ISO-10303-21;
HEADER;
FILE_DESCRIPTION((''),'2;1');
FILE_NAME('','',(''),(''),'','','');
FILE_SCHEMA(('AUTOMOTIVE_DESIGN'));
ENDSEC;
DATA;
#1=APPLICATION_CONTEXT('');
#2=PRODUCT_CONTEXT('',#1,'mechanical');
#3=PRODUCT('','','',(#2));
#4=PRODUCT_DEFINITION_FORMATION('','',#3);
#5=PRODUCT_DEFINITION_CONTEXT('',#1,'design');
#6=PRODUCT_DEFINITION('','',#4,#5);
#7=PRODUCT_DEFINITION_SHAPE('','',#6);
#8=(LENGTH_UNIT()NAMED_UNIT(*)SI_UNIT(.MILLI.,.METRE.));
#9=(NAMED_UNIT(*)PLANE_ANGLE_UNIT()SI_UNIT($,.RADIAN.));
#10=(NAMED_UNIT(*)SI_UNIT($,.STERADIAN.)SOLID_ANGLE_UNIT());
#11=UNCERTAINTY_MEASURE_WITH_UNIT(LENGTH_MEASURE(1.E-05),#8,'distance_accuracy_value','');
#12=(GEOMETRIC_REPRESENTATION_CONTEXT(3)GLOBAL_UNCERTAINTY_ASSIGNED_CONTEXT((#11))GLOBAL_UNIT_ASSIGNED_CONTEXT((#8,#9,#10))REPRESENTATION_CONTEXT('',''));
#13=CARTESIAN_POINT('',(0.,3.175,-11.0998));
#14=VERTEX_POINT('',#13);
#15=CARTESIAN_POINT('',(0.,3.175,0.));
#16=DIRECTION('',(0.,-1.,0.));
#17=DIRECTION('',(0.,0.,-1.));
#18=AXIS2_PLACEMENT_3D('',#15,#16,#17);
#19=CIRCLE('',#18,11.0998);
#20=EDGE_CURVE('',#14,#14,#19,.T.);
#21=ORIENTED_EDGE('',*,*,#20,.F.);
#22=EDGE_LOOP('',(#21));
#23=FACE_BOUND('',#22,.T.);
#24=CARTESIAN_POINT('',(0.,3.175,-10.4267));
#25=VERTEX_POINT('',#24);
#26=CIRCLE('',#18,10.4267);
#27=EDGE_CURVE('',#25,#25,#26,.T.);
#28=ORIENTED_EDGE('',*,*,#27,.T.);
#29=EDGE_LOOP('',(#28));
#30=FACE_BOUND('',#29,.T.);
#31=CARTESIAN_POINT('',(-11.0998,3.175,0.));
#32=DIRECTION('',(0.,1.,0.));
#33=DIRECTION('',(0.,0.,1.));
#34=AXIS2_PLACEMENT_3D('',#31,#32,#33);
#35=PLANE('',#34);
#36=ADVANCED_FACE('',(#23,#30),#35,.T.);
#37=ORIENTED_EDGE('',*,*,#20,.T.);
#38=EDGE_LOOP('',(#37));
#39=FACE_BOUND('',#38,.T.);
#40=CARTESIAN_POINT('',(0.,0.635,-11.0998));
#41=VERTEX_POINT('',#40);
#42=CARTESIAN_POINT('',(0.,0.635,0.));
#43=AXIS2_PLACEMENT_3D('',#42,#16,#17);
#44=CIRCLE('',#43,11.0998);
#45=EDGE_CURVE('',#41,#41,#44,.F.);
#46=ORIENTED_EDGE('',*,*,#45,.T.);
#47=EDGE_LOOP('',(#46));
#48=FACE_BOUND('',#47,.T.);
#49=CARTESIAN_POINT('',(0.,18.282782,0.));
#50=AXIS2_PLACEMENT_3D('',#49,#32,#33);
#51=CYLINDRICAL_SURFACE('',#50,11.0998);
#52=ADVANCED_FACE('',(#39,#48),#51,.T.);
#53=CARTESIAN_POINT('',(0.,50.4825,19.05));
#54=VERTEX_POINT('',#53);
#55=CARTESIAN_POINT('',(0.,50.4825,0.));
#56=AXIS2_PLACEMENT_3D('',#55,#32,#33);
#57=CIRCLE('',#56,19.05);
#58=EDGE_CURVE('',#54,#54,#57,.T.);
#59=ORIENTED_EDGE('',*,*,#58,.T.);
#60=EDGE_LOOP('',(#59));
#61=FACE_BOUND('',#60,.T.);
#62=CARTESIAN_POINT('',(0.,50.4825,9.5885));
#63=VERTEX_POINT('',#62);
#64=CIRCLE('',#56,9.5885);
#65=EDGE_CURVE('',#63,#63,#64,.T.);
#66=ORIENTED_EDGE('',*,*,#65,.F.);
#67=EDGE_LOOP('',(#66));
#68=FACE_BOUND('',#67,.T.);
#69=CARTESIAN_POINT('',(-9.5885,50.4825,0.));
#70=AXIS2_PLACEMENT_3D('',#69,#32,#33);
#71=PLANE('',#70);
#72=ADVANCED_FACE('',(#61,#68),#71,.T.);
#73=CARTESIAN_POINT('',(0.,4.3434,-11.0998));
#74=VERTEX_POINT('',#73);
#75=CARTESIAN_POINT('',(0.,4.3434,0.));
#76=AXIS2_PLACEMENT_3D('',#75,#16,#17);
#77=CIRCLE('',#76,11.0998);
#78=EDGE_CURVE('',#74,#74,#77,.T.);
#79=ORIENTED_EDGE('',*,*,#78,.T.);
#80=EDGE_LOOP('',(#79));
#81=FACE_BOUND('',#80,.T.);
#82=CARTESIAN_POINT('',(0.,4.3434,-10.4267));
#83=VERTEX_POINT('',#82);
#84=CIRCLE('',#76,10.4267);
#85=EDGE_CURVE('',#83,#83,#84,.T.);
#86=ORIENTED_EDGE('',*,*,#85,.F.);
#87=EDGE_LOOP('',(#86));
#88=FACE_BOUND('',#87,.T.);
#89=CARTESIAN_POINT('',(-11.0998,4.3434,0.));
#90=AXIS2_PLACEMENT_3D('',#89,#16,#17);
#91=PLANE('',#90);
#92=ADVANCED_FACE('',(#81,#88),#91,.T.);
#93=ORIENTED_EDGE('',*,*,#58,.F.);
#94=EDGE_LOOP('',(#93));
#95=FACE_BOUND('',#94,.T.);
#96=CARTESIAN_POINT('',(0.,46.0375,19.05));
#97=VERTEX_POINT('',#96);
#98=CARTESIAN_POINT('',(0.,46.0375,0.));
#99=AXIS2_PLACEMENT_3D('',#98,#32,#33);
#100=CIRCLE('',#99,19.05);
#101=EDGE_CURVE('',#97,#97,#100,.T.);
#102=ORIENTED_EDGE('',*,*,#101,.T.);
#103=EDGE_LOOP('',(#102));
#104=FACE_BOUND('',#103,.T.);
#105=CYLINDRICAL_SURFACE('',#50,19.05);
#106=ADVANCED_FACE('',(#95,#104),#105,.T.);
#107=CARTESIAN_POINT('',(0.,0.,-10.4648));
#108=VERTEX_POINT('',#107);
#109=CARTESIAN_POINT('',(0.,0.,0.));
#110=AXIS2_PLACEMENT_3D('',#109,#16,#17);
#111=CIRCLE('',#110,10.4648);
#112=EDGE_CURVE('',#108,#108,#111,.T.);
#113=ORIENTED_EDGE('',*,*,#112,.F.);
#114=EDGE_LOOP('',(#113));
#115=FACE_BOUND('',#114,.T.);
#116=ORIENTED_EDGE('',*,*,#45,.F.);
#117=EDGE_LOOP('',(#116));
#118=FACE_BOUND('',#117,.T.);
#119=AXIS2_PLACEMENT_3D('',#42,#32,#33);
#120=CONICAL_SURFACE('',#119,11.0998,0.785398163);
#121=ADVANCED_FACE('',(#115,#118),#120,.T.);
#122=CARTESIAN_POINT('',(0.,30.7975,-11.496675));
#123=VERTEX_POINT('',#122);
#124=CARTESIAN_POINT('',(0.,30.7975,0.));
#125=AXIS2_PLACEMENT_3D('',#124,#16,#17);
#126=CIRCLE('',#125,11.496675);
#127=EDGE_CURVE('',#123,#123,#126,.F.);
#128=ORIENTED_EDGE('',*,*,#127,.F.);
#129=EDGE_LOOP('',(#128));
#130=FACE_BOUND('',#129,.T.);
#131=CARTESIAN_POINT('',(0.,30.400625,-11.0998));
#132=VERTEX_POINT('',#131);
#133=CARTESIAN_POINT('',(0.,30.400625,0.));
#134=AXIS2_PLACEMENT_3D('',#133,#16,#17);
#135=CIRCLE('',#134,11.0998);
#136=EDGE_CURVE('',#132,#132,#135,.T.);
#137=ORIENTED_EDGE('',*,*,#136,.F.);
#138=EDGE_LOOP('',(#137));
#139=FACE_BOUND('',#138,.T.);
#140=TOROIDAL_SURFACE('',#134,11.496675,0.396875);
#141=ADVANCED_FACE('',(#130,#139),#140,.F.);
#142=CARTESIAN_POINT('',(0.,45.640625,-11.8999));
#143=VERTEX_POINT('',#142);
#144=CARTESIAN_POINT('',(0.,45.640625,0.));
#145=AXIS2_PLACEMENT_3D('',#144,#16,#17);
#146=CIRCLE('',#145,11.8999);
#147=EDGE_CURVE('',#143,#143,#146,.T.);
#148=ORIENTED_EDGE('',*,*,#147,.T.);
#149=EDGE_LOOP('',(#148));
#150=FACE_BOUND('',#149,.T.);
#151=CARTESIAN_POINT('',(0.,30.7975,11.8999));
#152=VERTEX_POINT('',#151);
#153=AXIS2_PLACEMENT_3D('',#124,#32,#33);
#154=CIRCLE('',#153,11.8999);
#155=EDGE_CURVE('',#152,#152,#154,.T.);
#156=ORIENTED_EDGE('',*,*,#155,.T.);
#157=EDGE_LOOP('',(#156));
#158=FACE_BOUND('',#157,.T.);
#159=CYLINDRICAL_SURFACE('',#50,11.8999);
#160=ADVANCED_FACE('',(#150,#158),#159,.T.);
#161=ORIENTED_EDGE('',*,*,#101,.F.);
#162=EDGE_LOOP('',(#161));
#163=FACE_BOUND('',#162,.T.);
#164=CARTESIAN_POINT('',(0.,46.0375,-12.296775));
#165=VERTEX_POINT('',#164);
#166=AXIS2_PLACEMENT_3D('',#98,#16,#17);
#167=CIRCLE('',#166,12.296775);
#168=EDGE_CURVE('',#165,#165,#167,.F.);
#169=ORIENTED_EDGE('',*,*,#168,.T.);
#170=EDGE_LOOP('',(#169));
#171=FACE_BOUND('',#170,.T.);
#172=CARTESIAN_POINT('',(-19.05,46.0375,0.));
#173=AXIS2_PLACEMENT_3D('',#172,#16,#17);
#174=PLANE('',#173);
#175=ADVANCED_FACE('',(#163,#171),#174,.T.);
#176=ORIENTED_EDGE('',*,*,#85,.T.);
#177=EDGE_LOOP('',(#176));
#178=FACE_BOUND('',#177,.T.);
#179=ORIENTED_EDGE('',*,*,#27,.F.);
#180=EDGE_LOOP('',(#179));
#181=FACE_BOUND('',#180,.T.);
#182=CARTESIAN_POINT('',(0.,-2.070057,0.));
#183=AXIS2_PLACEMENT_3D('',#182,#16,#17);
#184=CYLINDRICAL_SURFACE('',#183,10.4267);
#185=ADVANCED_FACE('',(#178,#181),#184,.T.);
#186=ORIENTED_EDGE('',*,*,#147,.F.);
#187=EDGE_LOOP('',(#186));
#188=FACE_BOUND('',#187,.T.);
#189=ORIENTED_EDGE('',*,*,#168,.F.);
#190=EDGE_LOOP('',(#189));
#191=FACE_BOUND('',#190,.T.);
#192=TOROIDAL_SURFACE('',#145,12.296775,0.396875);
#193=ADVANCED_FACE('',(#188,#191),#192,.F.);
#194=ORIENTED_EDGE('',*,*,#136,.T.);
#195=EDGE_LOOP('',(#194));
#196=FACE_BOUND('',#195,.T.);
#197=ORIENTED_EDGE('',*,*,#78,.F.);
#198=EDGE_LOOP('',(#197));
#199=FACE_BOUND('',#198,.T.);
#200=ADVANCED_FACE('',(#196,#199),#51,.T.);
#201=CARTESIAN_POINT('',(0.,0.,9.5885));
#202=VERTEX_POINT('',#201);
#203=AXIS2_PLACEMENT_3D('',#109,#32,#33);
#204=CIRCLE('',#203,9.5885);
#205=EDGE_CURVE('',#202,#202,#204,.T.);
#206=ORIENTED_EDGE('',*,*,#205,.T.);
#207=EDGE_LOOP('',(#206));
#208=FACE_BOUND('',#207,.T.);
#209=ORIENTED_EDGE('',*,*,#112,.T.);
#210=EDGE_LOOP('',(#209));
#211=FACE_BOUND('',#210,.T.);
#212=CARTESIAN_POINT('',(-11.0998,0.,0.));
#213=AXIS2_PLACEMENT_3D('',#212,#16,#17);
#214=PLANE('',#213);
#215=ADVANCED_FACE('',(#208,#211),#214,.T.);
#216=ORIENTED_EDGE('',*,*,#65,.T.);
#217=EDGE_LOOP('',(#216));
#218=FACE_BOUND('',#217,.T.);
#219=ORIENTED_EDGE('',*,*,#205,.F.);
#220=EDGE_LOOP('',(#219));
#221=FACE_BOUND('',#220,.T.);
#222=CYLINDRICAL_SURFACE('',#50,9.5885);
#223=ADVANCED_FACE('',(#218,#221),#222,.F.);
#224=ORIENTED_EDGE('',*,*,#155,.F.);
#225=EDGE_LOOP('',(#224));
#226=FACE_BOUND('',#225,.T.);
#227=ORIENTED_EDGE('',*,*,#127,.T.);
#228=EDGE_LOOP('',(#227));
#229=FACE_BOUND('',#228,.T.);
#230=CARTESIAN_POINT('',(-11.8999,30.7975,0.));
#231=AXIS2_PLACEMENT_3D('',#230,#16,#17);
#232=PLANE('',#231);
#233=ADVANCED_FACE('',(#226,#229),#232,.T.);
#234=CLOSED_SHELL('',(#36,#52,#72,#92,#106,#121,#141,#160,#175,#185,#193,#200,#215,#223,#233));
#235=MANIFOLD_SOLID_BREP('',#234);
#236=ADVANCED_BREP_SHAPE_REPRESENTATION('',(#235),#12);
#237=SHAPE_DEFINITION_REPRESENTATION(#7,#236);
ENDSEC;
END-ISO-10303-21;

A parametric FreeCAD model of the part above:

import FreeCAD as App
import Part
import Sketcher
from FreeCAD import Vector
Q = App.Units.Quantity


def edges_at(feature, points):
    """Names of the edges that pass closest to the given points."""
    edges = feature.Shape.Edges
    near = lambda p: min(range(len(edges)), key=lambda i: edges[i].distToShape(Part.Vertex(*p))[0])
    return sorted({f"Edge{near(p) + 1}" for p in points})

doc = App.newDocument("Part")
params = doc.addObject("Spreadsheet::Sheet", "Params")
for row, (alias, value) in enumerate([
    ("sketch1_height", "0.6 in"),
    ("sketch1_height2", "0.175 in"),
    ("revolution_angle", "360 deg"),
    ("chamfer_size", "0.025 in"),
    ("sketch2_height", "0.046 in"),
    ("groove_angle", "360 deg"),
    ("fillet_radius", "0.015625 in"),
], start=1):
    params.set(f"A{row}", alias)
    params.set(f"B{row}", "=" + value)
    params.setAlias(f"B{row}", alias)

body = doc.addObject("PartDesign::Body", "Body")

sketch1 = body.newObject("Sketcher::SketchObject", "Sketch")
sketch1.AttachmentSupport = (doc.getObject("XY_Plane"), [""])
sketch1.MapMode = "FlatFace"
sketch1.addGeometry([
    Part.LineSegment(Vector(-19.1, 50.5, 0), Vector(-19.1, 46, 0)),
    Part.LineSegment(Vector(-19.1, 46, 0), Vector(-11.9, 46, 0)),
    Part.LineSegment(Vector(-11.9, 46, 0), Vector(-11.9, 30.8, 0)),
    Part.LineSegment(Vector(-11.9, 30.8, 0), Vector(-11.1, 30.8, 0)),
    Part.LineSegment(Vector(-11.1, 30.8, 0), Vector(-11.1, 0, 0)),
    Part.LineSegment(Vector(-11.1, 0, 0), Vector(-9.6, 0, 0)),
    Part.LineSegment(Vector(-9.6, 0, 0), Vector(-9.6, 50.5, 0)),
    Part.LineSegment(Vector(-9.6, 50.5, 0), Vector(-19.1, 50.5, 0)),
], False)
sketch1.addConstraint([
    Sketcher.Constraint("Coincident", 0, 2, 1, 1),
    Sketcher.Constraint("Coincident", 1, 2, 2, 1),
    Sketcher.Constraint("Coincident", 2, 2, 3, 1),
    Sketcher.Constraint("Coincident", 3, 2, 4, 1),
    Sketcher.Constraint("Coincident", 4, 2, 5, 1),
    Sketcher.Constraint("Coincident", 5, 2, 6, 1),
    Sketcher.Constraint("Coincident", 6, 2, 7, 1),
    Sketcher.Constraint("Coincident", 7, 2, 0, 1),
    Sketcher.Constraint("Vertical", 0),
    Sketcher.Constraint("Horizontal", 1),
    Sketcher.Constraint("Vertical", 2),
    Sketcher.Constraint("Horizontal", 3),
    Sketcher.Constraint("Vertical", 4),
    Sketcher.Constraint("Horizontal", 5),
    Sketcher.Constraint("Vertical", 6),
    Sketcher.Constraint("Horizontal", 7),
    Sketcher.Constraint("PointOnObject", 4, 2, -1),
    Sketcher.Constraint("DistanceY", 2, 2, 2, 1, Q("0.6 in")),
    Sketcher.Constraint("DistanceY", 0, 2, 0, 1, Q("0.175 in")),
    Sketcher.Constraint("DistanceX", 0, 2, -1, 1, Q("0.75 in")),
    Sketcher.Constraint("DistanceX", 1, 1, 1, 2, Q("0.2815 in")),
    Sketcher.Constraint("DistanceX", 3, 1, 3, 2, Q("0.0315 in")),
    Sketcher.Constraint("DistanceX", 5, 1, 5, 2, Q("0.0595 in")),
    Sketcher.Constraint("DistanceY", 4, 2, 4, 1, Q("1.2125 in")),
])
sketch1.setExpression("Constraints[17]", "Params.sketch1_height")
sketch1.setExpression("Constraints[18]", "Params.sketch1_height2")
revolution = body.newObject("PartDesign::Revolution", "Revolution")
revolution.Profile = sketch1
revolution.ReferenceAxis = (sketch1, ["V_Axis"])
revolution.setExpression("Angle", "Params.revolution_angle")
doc.recompute()

chamfer = body.newObject("PartDesign::Chamfer", "Chamfer")
chamfer.Base = (revolution, edges_at(revolution, [(0, 0, -11.1)]))
chamfer.setExpression("Size", "Params.chamfer_size")

sketch2 = body.newObject("Sketcher::SketchObject", "Sketch001")
sketch2.AttachmentSupport = (doc.getObject("XY_Plane"), [""])
sketch2.MapMode = "FlatFace"
sketch2.addGeometry([
    Part.LineSegment(Vector(-11.1, 4.3, 0), Vector(-11.1, 3.2, 0)),
    Part.LineSegment(Vector(-11.1, 3.2, 0), Vector(-10.4, 3.2, 0)),
    Part.LineSegment(Vector(-10.4, 3.2, 0), Vector(-10.4, 4.3, 0)),
    Part.LineSegment(Vector(-10.4, 4.3, 0), Vector(-11.1, 4.3, 0)),
], False)
sketch2.addConstraint([
    Sketcher.Constraint("Coincident", 0, 2, 1, 1),
    Sketcher.Constraint("Coincident", 1, 2, 2, 1),
    Sketcher.Constraint("Coincident", 2, 2, 3, 1),
    Sketcher.Constraint("Coincident", 3, 2, 0, 1),
    Sketcher.Constraint("Vertical", 0),
    Sketcher.Constraint("Horizontal", 1),
    Sketcher.Constraint("Vertical", 2),
    Sketcher.Constraint("Horizontal", 3),
    Sketcher.Constraint("DistanceY", 0, 2, 0, 1, Q("0.046 in")),
    Sketcher.Constraint("DistanceX", 1, 1, 1, 2, Q("0.0265 in")),
    Sketcher.Constraint("DistanceX", 0, 2, -1, 1, Q("0.437 in")),
    Sketcher.Constraint("DistanceY", -1, 1, 0, 2, Q("0.125 in")),
])
sketch2.setExpression("Constraints[8]", "Params.sketch2_height")
groove = body.newObject("PartDesign::Groove", "Groove")
groove.Profile = sketch2
groove.ReferenceAxis = (sketch2, ["V_Axis"])
groove.setExpression("Angle", "Params.groove_angle")
doc.recompute()

fillet = body.newObject("PartDesign::Fillet", "Fillet")
fillet.Base = (groove, edges_at(groove, [(0, 46.038, -11.9), (0, 30.797, -11.1)]))
fillet.setExpression("Radius", "Params.fillet_radius")

doc.recompute()
